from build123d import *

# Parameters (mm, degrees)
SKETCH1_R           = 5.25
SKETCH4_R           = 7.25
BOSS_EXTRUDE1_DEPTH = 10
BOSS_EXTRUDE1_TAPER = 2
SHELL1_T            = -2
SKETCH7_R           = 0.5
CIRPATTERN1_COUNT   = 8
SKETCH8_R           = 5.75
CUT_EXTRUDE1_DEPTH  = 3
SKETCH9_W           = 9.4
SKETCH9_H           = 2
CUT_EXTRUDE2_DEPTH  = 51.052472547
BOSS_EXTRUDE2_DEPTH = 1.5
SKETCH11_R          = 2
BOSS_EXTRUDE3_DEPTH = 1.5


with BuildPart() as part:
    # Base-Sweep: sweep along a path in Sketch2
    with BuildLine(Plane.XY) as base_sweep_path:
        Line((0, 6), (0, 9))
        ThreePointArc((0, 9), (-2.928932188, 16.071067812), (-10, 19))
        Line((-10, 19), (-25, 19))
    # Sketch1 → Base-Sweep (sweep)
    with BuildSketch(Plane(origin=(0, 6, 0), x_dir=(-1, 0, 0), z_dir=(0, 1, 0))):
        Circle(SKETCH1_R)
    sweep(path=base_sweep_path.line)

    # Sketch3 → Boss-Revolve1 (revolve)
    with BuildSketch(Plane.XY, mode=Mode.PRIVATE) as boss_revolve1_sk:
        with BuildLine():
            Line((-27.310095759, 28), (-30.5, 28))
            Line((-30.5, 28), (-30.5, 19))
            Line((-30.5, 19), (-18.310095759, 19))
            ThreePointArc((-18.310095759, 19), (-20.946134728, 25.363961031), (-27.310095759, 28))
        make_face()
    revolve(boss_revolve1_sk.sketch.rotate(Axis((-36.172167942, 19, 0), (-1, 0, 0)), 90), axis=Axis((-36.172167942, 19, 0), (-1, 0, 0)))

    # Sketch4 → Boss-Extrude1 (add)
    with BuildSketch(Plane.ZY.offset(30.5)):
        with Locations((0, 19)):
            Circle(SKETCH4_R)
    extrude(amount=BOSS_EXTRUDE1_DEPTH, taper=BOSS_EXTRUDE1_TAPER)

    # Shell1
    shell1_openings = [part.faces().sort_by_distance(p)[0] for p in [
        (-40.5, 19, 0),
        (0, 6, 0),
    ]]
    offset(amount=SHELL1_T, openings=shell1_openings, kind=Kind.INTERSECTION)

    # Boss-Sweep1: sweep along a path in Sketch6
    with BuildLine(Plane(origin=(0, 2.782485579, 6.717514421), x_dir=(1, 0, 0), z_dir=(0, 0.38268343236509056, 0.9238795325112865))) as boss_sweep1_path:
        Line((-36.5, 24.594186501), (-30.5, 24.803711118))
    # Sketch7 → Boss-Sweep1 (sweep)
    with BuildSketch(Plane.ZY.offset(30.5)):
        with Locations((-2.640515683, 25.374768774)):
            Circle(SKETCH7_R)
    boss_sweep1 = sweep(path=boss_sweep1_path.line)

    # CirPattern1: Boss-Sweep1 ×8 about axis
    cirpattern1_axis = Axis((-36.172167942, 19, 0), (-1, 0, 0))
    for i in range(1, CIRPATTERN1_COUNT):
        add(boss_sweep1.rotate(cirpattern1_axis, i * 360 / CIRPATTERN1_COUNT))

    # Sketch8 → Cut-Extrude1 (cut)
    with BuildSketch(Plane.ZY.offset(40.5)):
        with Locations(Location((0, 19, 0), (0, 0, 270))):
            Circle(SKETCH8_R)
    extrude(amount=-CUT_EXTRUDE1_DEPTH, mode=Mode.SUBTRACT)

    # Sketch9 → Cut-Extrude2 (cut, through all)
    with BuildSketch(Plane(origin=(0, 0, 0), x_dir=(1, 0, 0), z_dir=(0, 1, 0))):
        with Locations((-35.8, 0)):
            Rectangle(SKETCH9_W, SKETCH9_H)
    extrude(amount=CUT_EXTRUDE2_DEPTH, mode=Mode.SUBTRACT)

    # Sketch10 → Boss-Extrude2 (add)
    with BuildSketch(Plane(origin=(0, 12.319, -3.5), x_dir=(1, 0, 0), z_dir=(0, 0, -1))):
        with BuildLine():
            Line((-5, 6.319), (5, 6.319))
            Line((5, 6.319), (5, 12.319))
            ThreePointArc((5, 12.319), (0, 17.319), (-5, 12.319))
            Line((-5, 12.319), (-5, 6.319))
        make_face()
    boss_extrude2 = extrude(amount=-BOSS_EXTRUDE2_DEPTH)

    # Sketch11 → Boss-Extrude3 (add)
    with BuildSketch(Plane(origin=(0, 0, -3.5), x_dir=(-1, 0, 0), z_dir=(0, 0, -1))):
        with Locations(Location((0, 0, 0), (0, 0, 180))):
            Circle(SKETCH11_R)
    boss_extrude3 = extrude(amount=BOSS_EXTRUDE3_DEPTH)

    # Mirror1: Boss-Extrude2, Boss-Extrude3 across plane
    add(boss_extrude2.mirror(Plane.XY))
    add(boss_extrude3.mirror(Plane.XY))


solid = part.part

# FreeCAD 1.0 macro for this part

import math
import FreeCAD as App
import Part
import Sketcher
from FreeCAD import Vector


def faces_at(feature, points):
    """Names of the faces that lie closest to the given points."""
    faces = feature.Shape.Faces
    near = lambda p: min(range(len(faces)), key=lambda i: faces[i].distToShape(Part.Vertex(*p))[0])
    return sorted({f"Face{near(p) + 1}" for p in points})


def add_polygon(sketch, points):
    """Adds a closed chain of lines whose ends are joined by coincident constraints."""
    first, n = sketch.GeometryCount, len(points)
    for a, b in zip(points, points[1:] + points[:1]):
        sketch.addGeometry(Part.LineSegment(App.Vector(*a, 0), App.Vector(*b, 0)), False)
    for i in range(n):
        sketch.addConstraint(Sketcher.Constraint("Coincident", first + i, 2, first + (i + 1) % n, 1))

doc = App.newDocument("Part")
body = doc.addObject("PartDesign::Body", "Body")

# Sketch on XZ plane
sketch1 = doc.addObject("Sketcher::SketchObject", "Sketch")
body.addObject(sketch1)
sketch1.AttachmentSupport = (doc.XZ_Plane, [""])
sketch1.MapMode = "FlatFace"
sketch1.AttachmentOffset = App.Placement(Vector(0, 0, -6), App.Rotation())
sketch1.addGeometry(Part.Circle(Vector(0, 0, 0), Vector(0, 0, 1), 5), False)
sketch1.addConstraint([
    Sketcher.Constraint("Coincident", 0, 3, -1, 1),
    Sketcher.Constraint("Diameter", 0, 10.5),
])

# Sketch on XY plane
sketch2 = doc.addObject("Sketcher::SketchObject", "Sketch001")
body.addObject(sketch2)
sketch2.AttachmentSupport = (doc.XY_Plane, [""])
sketch2.MapMode = "FlatFace"
sketch2.addGeometry([
    Part.LineSegment(Vector(0, 6, 0), Vector(0, 9, 0)),
    Part.ArcOfCircle(Part.Circle(Vector(-10, 9, 0), Vector(0, 0, 1), 10), math.radians(0), math.radians(90)),
    Part.LineSegment(Vector(-10, 19, 0), Vector(-25, 19, 0)),
], False)
sketch2.addConstraint([
    Sketcher.Constraint("Tangent", 0, 2, 1, 1),
    Sketcher.Constraint("Tangent", 1, 2, 2, 1),
    Sketcher.Constraint("Vertical", 0),
    Sketcher.Constraint("Horizontal", 2),
    Sketcher.Constraint("PointOnObject", 0, 1, -2),
    Sketcher.Constraint("Radius", 1, 10.0),
    Sketcher.Constraint("DistanceX", 2, 2, 2, 1, 15.0),
    Sketcher.Constraint("DistanceY", 0, 1, 0, 2, 3.0),
    Sketcher.Constraint("DistanceY", -1, 1, 1, 3, 9.0),
])
doc.recompute()

additivepipe = doc.addObject("PartDesign::AdditivePipe", "AdditivePipe")
body.addObject(additivepipe)
additivepipe.Profile = sketch1
additivepipe.Spine = (sketch2, ["Edge1", "Edge2", "Edge3"])

# Sketch on XY plane
sketch3 = doc.addObject("Sketcher::SketchObject", "Sketch002")
body.addObject(sketch3)
sketch3.AttachmentSupport = (doc.XY_Plane, [""])
sketch3.MapMode = "FlatFace"
sketch3.addGeometry([
    Part.LineSegment(Vector(-27.3, 28, 0), Vector(-30.5, 28, 0)),
    Part.LineSegment(Vector(-30.5, 28, 0), Vector(-30.5, 19, 0)),
    Part.LineSegment(Vector(-30.5, 19, 0), Vector(-18.3, 19, 0)),
    Part.ArcOfCircle(Part.Circle(Vector(-27.3, 19, 0), Vector(0, 0, 1), 9), math.radians(0), math.radians(90)),
], False)
sketch3.addGeometry(Part.LineSegment(Vector(-18.3, 19, 0), Vector(-30.5, 19, 0)), True)  # axis
sketch3.addConstraint([
    Sketcher.Constraint("Coincident", 0, 2, 1, 1),
    Sketcher.Constraint("Coincident", 1, 2, 2, 1),
    Sketcher.Constraint("Coincident", 2, 2, 3, 1),
    Sketcher.Constraint("Tangent", 3, 2, 0, 1),
    Sketcher.Constraint("Horizontal", 0),
    Sketcher.Constraint("Vertical", 1),
    Sketcher.Constraint("Horizontal", 2),
    Sketcher.Constraint("Horizontal", 4),
    Sketcher.Constraint("Coincident", 4, 1, 2, 2),
    Sketcher.Constraint("Horizontal", 3, 3, 1, 2),
    Sketcher.Constraint("Vertical", 0, 2, 4, 2),
    Sketcher.Constraint("Radius", 3, 9.0),
    Sketcher.Constraint("DistanceY", -1, 1, 3, 3, 19.0),
    Sketcher.Constraint("DistanceX", 0, 2, -1, 1, 30.5),
    Sketcher.Constraint("DistanceX", 0, 2, 0, 1, 3.189904),
])
revolution = doc.addObject("PartDesign::Revolution", "Revolution")
body.addObject(revolution)
revolution.Profile = sketch3
revolution.ReferenceAxis = (sketch3, ["Axis0"])
revolution.Angle = 360

# Sketch on YZ plane
sketch4 = doc.addObject("Sketcher::SketchObject", "Sketch003")
body.addObject(sketch4)
sketch4.AttachmentSupport = (doc.YZ_Plane, [""])
sketch4.MapMode = "FlatFace"
sketch4.AttachmentOffset = App.Placement(Vector(0, 0, -30.5), App.Rotation())
sketch4.addGeometry(Part.Circle(Vector(19, 0, 0), Vector(0, 0, 1), 7), False)
sketch4.addConstraint([
    Sketcher.Constraint("PointOnObject", 0, 3, -1),
    Sketcher.Constraint("Diameter", 0, 14.5),
    Sketcher.Constraint("DistanceX", -1, 1, 0, 3, 19.0),
])
pad1 = doc.addObject("PartDesign::Pad", "Pad")
body.addObject(pad1)
pad1.Profile = sketch4
pad1.Length = 10
pad1.Reversed = True
pad1.TaperAngle = -2
doc.recompute()

thickness = doc.addObject("PartDesign::Thickness", "Thickness")
body.addObject(thickness)
thickness.Base = (pad1, faces_at(pad1, [(-40.5, 19, 0), (0, 6, 0)]))
thickness.Value = 2
thickness.Reversed = True
thickness.Join = "Intersection"

# Sketch on YZ plane
sketch5 = doc.addObject("Sketcher::SketchObject", "Sketch004")
body.addObject(sketch5)
sketch5.AttachmentSupport = (doc.YZ_Plane, [""])
sketch5.MapMode = "FlatFace"
sketch5.AttachmentOffset = App.Placement(Vector(0, 0, -30.5), App.Rotation())
sketch5.addGeometry(Part.Circle(Vector(25.4, -2.6, 0), Vector(0, 0, 1), 0.5), False)
sketch5.addConstraint([
    Sketcher.Constraint("Diameter", 0, 1.0),
    Sketcher.Constraint("DistanceX", -1, 1, 0, 3, 25.374769),
    Sketcher.Constraint("DistanceY", 0, 3, -1, 1, 2.640516),
])

# Sketch on an angled plane
sketch6 = doc.addObject("Sketcher::SketchObject", "Sketch005")
body.addObject(sketch6)
sketch6.Placement = App.Placement(Vector(-0.85994, 26.654392, 0), App.Rotation(Vector(0.999479969, 0.032245807, 0), Vector(0, 0, 1.000000001), Vector(0.032245807, -0.999479969, 0), "ZXY"))
sketch6.addGeometry(Part.LineSegment(Vector(-36, -3, 0), Vector(-30, -3, 0)), False)
sketch6.addConstraint([
    Sketcher.Constraint("DistanceX", 0, 1, 0, 2, 6.003122),
    Sketcher.Constraint("DistanceY", 0, 2, 0, 1, 0.080182),
    Sketcher.Constraint("DistanceX", 0, 1, -1, 1, 35.658604),
    Sketcher.Constraint("DistanceY", 0, 1, -1, 1, 2.694273),
])
doc.recompute()

additivepipe2 = doc.addObject("PartDesign::AdditivePipe", "AdditivePipe001")
body.addObject(additivepipe2)
additivepipe2.Profile = sketch5
additivepipe2.Spine = (sketch6, ["Edge1"])
doc.recompute()

datumline = doc.addObject("PartDesign::Line", "DatumLine")
body.addObject(datumline)
datumline.Placement = App.Placement(Vector(0, 19, 0), App.Rotation(Vector(0, 0, 1), Vector(-1, 0, 0)))
polarpattern = doc.addObject("PartDesign::PolarPattern", "PolarPattern")
body.addObject(polarpattern)
polarpattern.Originals = [additivepipe2]
polarpattern.Axis = (datumline, [""])
polarpattern.Angle = 360
polarpattern.Occurrences = 8
body.Tip = polarpattern

# Sketch on YZ plane
sketch7 = doc.addObject("Sketcher::SketchObject", "Sketch006")
body.addObject(sketch7)
sketch7.AttachmentSupport = (doc.YZ_Plane, [""])
sketch7.MapMode = "FlatFace"
sketch7.AttachmentOffset = App.Placement(Vector(0, 0, -40.5), App.Rotation())
sketch7.addGeometry(Part.Circle(Vector(19, 0, 0), Vector(0, 0, 1), 6), False)
sketch7.addConstraint([
    Sketcher.Constraint("PointOnObject", 0, 3, -1),
    Sketcher.Constraint("Diameter", 0, 11.5),
    Sketcher.Constraint("DistanceX", -1, 1, 0, 3, 19.0),
])
pocket1 = doc.addObject("PartDesign::Pocket", "Pocket")
body.addObject(pocket1)
pocket1.Profile = sketch7
pocket1.Length = 3
pocket1.Reversed = True

# Sketch on XZ plane
sketch8 = doc.addObject("Sketcher::SketchObject", "Sketch007")
body.addObject(sketch8)
sketch8.AttachmentSupport = (doc.XZ_Plane, [""])
sketch8.MapMode = "FlatFace"
add_polygon(sketch8, [(-40.5, -1), (-40.5, 1), (-31.1, 1), (-31.1, -1)])  # lines 0-3
sketch8.addConstraint([
    Sketcher.Constraint("Vertical", 0),
    Sketcher.Constraint("Horizontal", 1),
    Sketcher.Constraint("Vertical", 2),
    Sketcher.Constraint("Horizontal", 3),
    Sketcher.Constraint("DistanceY", 0, 1, 0, 2, 2.0),
    Sketcher.Constraint("DistanceX", 1, 1, 1, 2, 9.4),
    Sketcher.Constraint("DistanceY", -1, 1, 0, 2, 1.0),
    Sketcher.Constraint("DistanceX", 0, 2, -1, 1, 40.5),
])
pocket2 = doc.addObject("PartDesign::Pocket", "Pocket001")
body.addObject(pocket2)
pocket2.Profile = sketch8
pocket2.Type = "ThroughAll"

# Sketch on XY plane
sketch9 = doc.addObject("Sketcher::SketchObject", "Sketch008")
body.addObject(sketch9)
sketch9.AttachmentSupport = (doc.XY_Plane, [""])
sketch9.MapMode = "FlatFace"
sketch9.AttachmentOffset = App.Placement(Vector(0, 0, -3.5), App.Rotation())
sketch9.addGeometry([
    Part.LineSegment(Vector(-5, 6, 0), Vector(5, 6, 0)),
    Part.LineSegment(Vector(5, 6, 0), Vector(5, 0, 0)),
    Part.ArcOfCircle(Part.Circle(Vector(0, 0, 0), Vector(0, 0, 1), 5), math.radians(180), math.radians(360)),
    Part.LineSegment(Vector(-5, 0, 0), Vector(-5, 6, 0)),
], False)
sketch9.addConstraint([
    Sketcher.Constraint("Coincident", 0, 2, 1, 1),
    Sketcher.Constraint("Tangent", 1, 2, 2, 2),
    Sketcher.Constraint("Tangent", 2, 1, 3, 1),
    Sketcher.Constraint("Coincident", 3, 2, 0, 1),
    Sketcher.Constraint("Horizontal", 0),
    Sketcher.Constraint("Vertical", 1),
    Sketcher.Constraint("Vertical", 3),
    Sketcher.Constraint("Coincident", 2, 3, -1, 1),
    Sketcher.Constraint("Radius", 2, 5.0),
    Sketcher.Constraint("DistanceY", 1, 2, 1, 1, 6.0),
])
pad2 = doc.addObject("PartDesign::Pad", "Pad001")
body.addObject(pad2)
pad2.Profile = sketch9
pad2.Length = 1.5

# Sketch on XY plane
sketch10 = doc.addObject("Sketcher::SketchObject", "Sketch009")
body.addObject(sketch10)
sketch10.AttachmentSupport = (doc.XY_Plane, [""])
sketch10.MapMode = "FlatFace"
sketch10.AttachmentOffset = App.Placement(Vector(0, 0, -3.5), App.Rotation())
sketch10.addGeometry(Part.Circle(Vector(0, 0, 0), Vector(0, 0, 1), 2), False)
sketch10.addConstraint([
    Sketcher.Constraint("Coincident", 0, 3, -1, 1),
    Sketcher.Constraint("Diameter", 0, 4.0),
])
pad3 = doc.addObject("PartDesign::Pad", "Pad002")
body.addObject(pad3)
pad3.Profile = sketch10
pad3.Length = 1.5
pad3.Reversed = True
doc.recompute()

mirrored = doc.addObject("PartDesign::Mirrored", "Mirrored")
body.addObject(mirrored)
mirrored.Originals = [pad2, pad3]
mirrored.MirrorPlane = (doc.XY_Plane, [""])
body.Tip = mirrored

doc.recompute()
